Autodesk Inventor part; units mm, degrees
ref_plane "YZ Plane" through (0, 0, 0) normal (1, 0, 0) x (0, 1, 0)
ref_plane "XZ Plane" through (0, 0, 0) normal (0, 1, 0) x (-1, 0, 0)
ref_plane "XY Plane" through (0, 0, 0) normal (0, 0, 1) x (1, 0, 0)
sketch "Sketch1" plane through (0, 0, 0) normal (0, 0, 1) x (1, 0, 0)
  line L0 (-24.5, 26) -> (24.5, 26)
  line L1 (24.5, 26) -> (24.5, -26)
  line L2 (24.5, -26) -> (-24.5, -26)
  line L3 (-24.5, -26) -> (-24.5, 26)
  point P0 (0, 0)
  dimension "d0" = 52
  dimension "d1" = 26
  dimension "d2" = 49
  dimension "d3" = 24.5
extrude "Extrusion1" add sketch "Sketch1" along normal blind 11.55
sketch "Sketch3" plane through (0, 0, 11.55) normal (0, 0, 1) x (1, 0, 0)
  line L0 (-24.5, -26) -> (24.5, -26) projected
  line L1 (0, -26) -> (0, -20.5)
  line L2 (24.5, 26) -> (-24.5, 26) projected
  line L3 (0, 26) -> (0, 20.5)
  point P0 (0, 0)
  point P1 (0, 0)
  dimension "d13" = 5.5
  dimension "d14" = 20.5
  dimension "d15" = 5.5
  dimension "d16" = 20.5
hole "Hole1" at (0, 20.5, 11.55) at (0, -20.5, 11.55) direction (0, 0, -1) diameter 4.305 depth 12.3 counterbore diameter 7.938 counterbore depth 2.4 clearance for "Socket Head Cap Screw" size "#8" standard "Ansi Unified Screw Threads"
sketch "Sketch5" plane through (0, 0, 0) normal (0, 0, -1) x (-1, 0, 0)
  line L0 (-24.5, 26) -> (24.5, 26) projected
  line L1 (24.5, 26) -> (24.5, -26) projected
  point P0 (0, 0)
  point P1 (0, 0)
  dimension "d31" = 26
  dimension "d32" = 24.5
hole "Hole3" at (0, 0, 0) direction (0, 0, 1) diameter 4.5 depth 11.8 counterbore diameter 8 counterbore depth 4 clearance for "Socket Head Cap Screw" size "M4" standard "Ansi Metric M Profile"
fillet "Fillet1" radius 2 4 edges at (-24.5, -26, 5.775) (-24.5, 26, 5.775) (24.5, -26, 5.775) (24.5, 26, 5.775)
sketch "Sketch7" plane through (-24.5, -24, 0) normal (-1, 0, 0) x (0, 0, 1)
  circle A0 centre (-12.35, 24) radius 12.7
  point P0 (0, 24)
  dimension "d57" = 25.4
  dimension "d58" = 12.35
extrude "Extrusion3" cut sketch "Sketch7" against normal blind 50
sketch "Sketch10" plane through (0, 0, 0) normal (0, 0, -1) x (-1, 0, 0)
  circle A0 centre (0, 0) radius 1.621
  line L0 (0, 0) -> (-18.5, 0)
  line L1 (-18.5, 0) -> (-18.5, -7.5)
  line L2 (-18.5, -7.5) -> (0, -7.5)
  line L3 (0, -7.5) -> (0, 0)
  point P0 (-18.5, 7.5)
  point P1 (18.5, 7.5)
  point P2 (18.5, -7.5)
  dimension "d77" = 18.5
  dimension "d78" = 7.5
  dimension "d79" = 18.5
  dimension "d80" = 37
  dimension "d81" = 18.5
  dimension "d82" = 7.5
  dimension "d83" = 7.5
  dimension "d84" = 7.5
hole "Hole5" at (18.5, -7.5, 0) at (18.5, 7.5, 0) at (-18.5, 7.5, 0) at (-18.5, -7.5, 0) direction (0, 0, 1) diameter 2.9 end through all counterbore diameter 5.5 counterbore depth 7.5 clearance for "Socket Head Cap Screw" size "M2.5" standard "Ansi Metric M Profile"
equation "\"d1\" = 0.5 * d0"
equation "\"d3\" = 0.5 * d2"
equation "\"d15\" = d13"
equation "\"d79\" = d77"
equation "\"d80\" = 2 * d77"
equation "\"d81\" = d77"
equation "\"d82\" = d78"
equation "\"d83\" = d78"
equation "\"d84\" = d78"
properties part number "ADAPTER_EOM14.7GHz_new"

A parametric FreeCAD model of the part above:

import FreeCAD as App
import Part
import Sketcher
from FreeCAD import Vector


def edges_at(feature, points):
    """Names of the edges that pass closest to the given points."""
    edges = feature.Shape.Edges
    near = lambda p: min(range(len(edges)), key=lambda i: edges[i].distToShape(Part.Vertex(*p))[0])
    return sorted({f"Edge{near(p) + 1}" for p in points})

doc = App.newDocument("Part")
body = doc.addObject("PartDesign::Body", "Body")

# Sketch on XY plane
sketch1 = body.newObject("Sketcher::SketchObject", "Sketch")
sketch1.AttachmentSupport = (doc.getObject("XY_Plane"), [""])
sketch1.MapMode = "FlatFace"
sketch1.addGeometry([
    Part.LineSegment(Vector(24, 26, 0), Vector(-24, 26, 0)),
    Part.LineSegment(Vector(-24, 26, 0), Vector(-24, -26, 0)),
    Part.LineSegment(Vector(-24, -26, 0), Vector(24, -26, 0)),
    Part.LineSegment(Vector(24, -26, 0), Vector(24, 26, 0)),
], False)
sketch1.addConstraint([
    Sketcher.Constraint("Coincident", 0, 2, 1, 1),
    Sketcher.Constraint("Coincident", 1, 2, 2, 1),
    Sketcher.Constraint("Coincident", 2, 2, 3, 1),
    Sketcher.Constraint("Coincident", 3, 2, 0, 1),
    Sketcher.Constraint("Horizontal", 0),
    Sketcher.Constraint("Vertical", 1),
    Sketcher.Constraint("Horizontal", 2),
    Sketcher.Constraint("Vertical", 3),
    Sketcher.Constraint("Symmetric", 0, 2, 2, 2, -1, 1),
    Sketcher.Constraint("DistanceX", 0, 2, 0, 1, 49.0),
    Sketcher.Constraint("DistanceY", 1, 2, 1, 1, 52.0),
])
pad1 = body.newObject("PartDesign::Pad", "Pad")
pad1.Profile = sketch1
pad1.Length = 11.55

# Sketch on XY plane
sketch2 = body.newObject("Sketcher::SketchObject", "Sketch001")
sketch2.AttachmentSupport = (doc.getObject("XY_Plane"), [""])
sketch2.MapMode = "FlatFace"
sketch2.AttachmentOffset = App.Placement(Vector(0, 0, 11.55), App.Rotation())
sketch2.addGeometry([
    Part.Circle(Vector(0, 20.5, 0), Vector(0, 0, 1), 2.2),
    Part.Circle(Vector(0, -20.5, 0), Vector(0, 0, 1), 2.2),
], False)
sketch2.addConstraint([
    Sketcher.Constraint("Equal", 0, 1),
    Sketcher.Constraint("Symmetric", 0, 3, 1, 3, -1, 1),
    Sketcher.Constraint("PointOnObject", 0, 3, -2),
    Sketcher.Constraint("Diameter", 0, 4.305),
    Sketcher.Constraint("DistanceY", 1, 3, 0, 3, 41.0),
])
doc.recompute()
hole = body.newObject("PartDesign::Hole", "Hole")
hole.Profile = sketch2
hole.ThreadType = "None"
hole.Diameter = 4.305
hole.DepthType = "Dimension"
hole.Depth = 12.3
hole.DrillPoint = "Flat"
hole.HoleCutType = "Counterbore"
hole.HoleCutDiameter = 7.938
hole.HoleCutDepth = 2.4

# Sketch on XY plane
sketch3 = body.newObject("Sketcher::SketchObject", "Sketch002")
sketch3.AttachmentSupport = (doc.getObject("XY_Plane"), [""])
sketch3.MapMode = "FlatFace"
sketch3.addGeometry(Part.Circle(Vector(0, 0, 0), Vector(0, 0, 1), 2.2), False)
sketch3.addConstraint([
    Sketcher.Constraint("Coincident", 0, 3, -1, 1),
    Sketcher.Constraint("Diameter", 0, 4.5),
])
doc.recompute()
hole2 = body.newObject("PartDesign::Hole", "Hole001")
hole2.Profile = sketch3
hole2.ThreadType = "None"
hole2.Diameter = 4.5
hole2.DepthType = "Dimension"
hole2.Depth = 11.8
hole2.DrillPoint = "Flat"
hole2.HoleCutType = "Counterbore"
hole2.HoleCutDiameter = 8
hole2.HoleCutDepth = 4
hole2.Reversed = True
doc.recompute()

fillet = body.newObject("PartDesign::Fillet", "Fillet")
fillet.Base = (hole2, edges_at(hole2, [
    (-24.5, -26, 5.775),
    (-24.5, 26, 5.775),
    (24.5, -26, 5.775),
    (24.5, 26, 5.775),
]))
fillet.Radius = 2

# Sketch on YZ plane
sketch4 = body.newObject("Sketcher::SketchObject", "Sketch003")
sketch4.AttachmentSupport = (doc.getObject("YZ_Plane"), [""])
sketch4.MapMode = "FlatFace"
sketch4.AttachmentOffset = App.Placement(Vector(0, 0, -24.5), App.Rotation())
sketch4.addGeometry(Part.Circle(Vector(0, -12, 0), Vector(0, 0, 1), 13), False)
sketch4.addConstraint([
    Sketcher.Constraint("PointOnObject", 0, 3, -2),
    Sketcher.Constraint("Diameter", 0, 25.4),
    Sketcher.Constraint("DistanceY", 0, 3, -1, 1, 12.35),
])
pocket1 = body.newObject("PartDesign::Pocket", "Pocket")
pocket1.Profile = sketch4
pocket1.Length = 50
pocket1.Reversed = True

# Sketch on XY plane
sketch5 = body.newObject("Sketcher::SketchObject", "Sketch004")
sketch5.AttachmentSupport = (doc.getObject("XY_Plane"), [""])
sketch5.MapMode = "FlatFace"
sketch5.addGeometry([
    Part.Circle(Vector(18.5, -7.5, 0), Vector(0, 0, 1), 1.4),
    Part.Circle(Vector(18.5, 7.5, 0), Vector(0, 0, 1), 1.4),
    Part.Circle(Vector(-18.5, 7.5, 0), Vector(0, 0, 1), 1.4),
    Part.Circle(Vector(-18.5, -7.5, 0), Vector(0, 0, 1), 1.4),
], False)
sketch5.addConstraint([
    Sketcher.Constraint("Equal", 0, 1),
    Sketcher.Constraint("Equal", 1, 2),
    Sketcher.Constraint("Equal", 2, 3),
    Sketcher.Constraint("Symmetric", 0, 3, 2, 3, -1, 1),
    Sketcher.Constraint("Symmetric", 1, 3, 3, 3, -1, 1),
    Sketcher.Constraint("Symmetric", 1, 3, 2, 3, -2),
    Sketcher.Constraint("Diameter", 0, 2.9),
    Sketcher.Constraint("DistanceY", 0, 3, 1, 3, 15.0),
    Sketcher.Constraint("DistanceX", 2, 3, 1, 3, 37.0),
])
doc.recompute()
hole3 = body.newObject("PartDesign::Hole", "Hole002")
hole3.Profile = sketch5
hole3.ThreadType = "None"
hole3.Diameter = 2.9
hole3.DepthType = "ThroughAll"
hole3.HoleCutType = "Counterbore"
hole3.HoleCutDiameter = 5.5
hole3.HoleCutDepth = 7.5
hole3.Reversed = True

doc.recompute()
